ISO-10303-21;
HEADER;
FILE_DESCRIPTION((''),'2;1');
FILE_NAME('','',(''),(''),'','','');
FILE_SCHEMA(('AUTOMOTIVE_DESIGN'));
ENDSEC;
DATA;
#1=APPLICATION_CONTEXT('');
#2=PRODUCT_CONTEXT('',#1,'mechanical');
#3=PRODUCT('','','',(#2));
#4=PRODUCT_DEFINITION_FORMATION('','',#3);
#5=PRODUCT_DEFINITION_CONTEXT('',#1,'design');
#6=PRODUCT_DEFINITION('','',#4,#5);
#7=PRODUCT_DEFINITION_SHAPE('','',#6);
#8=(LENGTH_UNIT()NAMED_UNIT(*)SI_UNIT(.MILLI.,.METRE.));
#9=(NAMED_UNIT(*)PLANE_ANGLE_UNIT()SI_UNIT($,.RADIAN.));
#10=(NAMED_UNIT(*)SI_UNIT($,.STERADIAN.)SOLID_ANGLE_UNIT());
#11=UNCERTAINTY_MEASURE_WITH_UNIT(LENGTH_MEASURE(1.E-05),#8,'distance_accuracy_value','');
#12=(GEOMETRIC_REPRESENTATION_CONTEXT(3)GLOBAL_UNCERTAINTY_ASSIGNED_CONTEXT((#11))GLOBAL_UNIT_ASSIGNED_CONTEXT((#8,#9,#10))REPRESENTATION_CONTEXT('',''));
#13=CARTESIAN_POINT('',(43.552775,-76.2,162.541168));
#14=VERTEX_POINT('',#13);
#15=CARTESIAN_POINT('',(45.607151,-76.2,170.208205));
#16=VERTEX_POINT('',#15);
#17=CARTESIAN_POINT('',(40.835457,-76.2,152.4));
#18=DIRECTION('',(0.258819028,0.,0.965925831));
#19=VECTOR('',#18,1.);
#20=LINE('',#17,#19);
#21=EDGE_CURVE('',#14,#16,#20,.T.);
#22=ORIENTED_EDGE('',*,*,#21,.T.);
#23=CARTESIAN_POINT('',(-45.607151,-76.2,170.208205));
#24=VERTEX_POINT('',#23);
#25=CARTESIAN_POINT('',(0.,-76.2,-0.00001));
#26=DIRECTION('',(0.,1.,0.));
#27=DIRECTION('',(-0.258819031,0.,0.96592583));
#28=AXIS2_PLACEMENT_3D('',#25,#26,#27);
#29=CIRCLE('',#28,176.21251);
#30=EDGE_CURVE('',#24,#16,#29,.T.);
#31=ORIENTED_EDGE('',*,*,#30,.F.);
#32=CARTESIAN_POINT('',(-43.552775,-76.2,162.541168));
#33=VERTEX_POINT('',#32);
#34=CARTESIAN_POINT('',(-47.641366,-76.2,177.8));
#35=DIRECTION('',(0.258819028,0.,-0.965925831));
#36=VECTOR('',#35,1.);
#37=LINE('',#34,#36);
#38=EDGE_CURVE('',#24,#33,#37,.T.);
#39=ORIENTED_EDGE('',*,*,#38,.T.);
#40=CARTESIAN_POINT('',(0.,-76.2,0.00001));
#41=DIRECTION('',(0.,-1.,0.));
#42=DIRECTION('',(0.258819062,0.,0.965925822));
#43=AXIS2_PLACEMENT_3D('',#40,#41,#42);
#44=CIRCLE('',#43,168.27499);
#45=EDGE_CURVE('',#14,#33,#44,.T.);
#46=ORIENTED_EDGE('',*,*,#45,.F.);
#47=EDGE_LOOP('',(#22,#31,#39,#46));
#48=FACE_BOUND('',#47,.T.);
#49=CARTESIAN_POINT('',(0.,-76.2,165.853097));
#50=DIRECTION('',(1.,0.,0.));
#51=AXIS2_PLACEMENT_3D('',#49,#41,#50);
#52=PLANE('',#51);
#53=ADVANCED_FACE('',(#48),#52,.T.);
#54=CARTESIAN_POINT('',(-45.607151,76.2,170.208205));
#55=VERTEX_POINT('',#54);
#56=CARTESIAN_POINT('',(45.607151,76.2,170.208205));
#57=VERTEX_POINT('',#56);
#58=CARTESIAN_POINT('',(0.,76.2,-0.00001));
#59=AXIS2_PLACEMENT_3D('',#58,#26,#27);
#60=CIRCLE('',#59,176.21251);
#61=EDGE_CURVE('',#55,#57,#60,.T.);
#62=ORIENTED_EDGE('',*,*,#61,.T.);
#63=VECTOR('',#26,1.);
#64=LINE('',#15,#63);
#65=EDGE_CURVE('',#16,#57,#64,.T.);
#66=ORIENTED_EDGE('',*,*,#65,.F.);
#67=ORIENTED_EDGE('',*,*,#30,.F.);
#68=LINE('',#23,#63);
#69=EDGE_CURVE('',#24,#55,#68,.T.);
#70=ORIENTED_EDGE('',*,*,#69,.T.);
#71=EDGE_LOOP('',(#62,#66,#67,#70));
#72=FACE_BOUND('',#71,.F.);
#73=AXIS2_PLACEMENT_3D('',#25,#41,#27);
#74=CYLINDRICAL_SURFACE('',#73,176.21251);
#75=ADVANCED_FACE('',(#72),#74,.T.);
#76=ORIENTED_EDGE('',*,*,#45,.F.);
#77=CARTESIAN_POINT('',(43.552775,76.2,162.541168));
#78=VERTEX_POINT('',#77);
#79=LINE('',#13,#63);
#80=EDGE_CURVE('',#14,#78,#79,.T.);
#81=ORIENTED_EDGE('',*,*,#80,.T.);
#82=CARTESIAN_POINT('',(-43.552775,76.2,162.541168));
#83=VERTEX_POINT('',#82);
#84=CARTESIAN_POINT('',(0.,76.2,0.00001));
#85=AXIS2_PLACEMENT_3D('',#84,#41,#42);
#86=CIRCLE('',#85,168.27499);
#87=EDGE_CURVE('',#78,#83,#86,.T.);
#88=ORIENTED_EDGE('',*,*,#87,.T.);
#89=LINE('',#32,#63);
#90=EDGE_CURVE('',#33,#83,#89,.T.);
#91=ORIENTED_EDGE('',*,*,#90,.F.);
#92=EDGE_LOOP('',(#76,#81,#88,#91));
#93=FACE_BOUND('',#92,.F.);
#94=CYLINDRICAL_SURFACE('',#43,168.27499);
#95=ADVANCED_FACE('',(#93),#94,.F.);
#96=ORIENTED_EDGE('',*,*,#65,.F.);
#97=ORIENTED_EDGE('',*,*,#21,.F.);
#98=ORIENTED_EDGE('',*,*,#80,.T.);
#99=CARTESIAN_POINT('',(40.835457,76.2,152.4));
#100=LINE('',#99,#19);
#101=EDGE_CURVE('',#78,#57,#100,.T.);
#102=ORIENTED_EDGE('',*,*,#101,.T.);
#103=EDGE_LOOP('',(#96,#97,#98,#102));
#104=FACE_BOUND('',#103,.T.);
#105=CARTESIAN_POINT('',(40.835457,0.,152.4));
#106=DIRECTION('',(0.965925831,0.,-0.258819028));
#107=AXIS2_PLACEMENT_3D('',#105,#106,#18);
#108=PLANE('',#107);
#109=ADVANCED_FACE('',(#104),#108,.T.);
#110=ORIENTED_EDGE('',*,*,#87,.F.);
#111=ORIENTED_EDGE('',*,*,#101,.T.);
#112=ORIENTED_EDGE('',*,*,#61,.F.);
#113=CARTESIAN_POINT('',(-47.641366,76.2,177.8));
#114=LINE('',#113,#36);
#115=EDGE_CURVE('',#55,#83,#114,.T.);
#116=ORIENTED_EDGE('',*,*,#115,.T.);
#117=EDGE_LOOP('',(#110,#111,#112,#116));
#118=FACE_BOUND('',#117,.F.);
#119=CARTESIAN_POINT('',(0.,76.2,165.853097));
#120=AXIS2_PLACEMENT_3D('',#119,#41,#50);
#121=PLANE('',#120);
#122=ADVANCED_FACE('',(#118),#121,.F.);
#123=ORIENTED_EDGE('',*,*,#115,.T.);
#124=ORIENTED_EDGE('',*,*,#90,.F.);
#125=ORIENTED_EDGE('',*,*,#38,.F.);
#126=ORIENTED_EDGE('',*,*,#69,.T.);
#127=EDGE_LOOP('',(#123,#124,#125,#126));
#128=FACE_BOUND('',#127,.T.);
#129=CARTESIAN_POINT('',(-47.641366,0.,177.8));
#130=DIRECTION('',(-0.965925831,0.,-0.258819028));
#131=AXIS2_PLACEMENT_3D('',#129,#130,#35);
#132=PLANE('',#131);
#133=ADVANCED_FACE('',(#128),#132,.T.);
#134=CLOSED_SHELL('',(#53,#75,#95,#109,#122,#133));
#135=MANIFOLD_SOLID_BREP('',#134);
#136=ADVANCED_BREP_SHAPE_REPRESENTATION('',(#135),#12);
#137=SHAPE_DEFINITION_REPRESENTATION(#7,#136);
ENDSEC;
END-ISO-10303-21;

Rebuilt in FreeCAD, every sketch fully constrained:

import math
import FreeCAD as App
import Part
import Sketcher

V = App.Vector
Q = App.Units.Quantity

doc = App.newDocument("Part")
params = doc.addObject("Spreadsheet::Sheet", "Params")
for row, (alias, value) in enumerate([
    ("pad1_length", "6 in"),
], start=1):
    params.set(f"A{row}", alias)
    params.set(f"B{row}", "=" + value)
    params.setAlias(f"B{row}", alias)

body = doc.addObject("PartDesign::Body", "Body")

# Sketch on XZ plane
sketch1 = body.newObject("Sketcher::SketchObject", "Sketch")
sketch1.AttachmentSupport = (doc.getObject("XZ_Plane"), [""])
sketch1.MapMode = "FlatFace"
sketch1.addGeometry(Part.LineSegment(V(48, 178, 0), V(-48, 178, 0)), False)
sketch1.addGeometry(Part.LineSegment(V(-48, 178, 0), V(-41, 152, 0)), False)
sketch1.addGeometry(Part.LineSegment(V(-41, 152, 0), V(41, 152, 0)), False)
sketch1.addGeometry(Part.LineSegment(V(41, 152, 0), V(48, 178, 0)), False)
sketch1.addConstraint(Sketcher.Constraint("Coincident", 0, 2, 1, 1))
sketch1.addConstraint(Sketcher.Constraint("Coincident", 1, 2, 2, 1))
sketch1.addConstraint(Sketcher.Constraint("Coincident", 2, 2, 3, 1))
sketch1.addConstraint(Sketcher.Constraint("Coincident", 3, 2, 0, 1))
sketch1.addConstraint(Sketcher.Constraint("Horizontal", 0))
sketch1.addConstraint(Sketcher.Constraint("Horizontal", 2))
sketch1.addConstraint(Sketcher.Constraint("Equal", 1, 3))
sketch1.addConstraint(Sketcher.Constraint("DistanceY", -1, 1, 0, 2, Q("7 in")))
sketch1.addConstraint(Sketcher.Constraint("DistanceY", -1, 1, 1, 2, Q("6 in")))
sketch1.addConstraint(Sketcher.Constraint("Angle", 1, Q("-75.000001 deg")))
sketch1.addConstraint(Sketcher.Constraint("DistanceX", 0, 2, 0, 1, 95.282732))
sketch1.addConstraint(Sketcher.Constraint("DistanceX", 0, 2, -1, 1, 47.641366))
pad1 = body.newObject("PartDesign::Pad", "Pad")
pad1.Profile = sketch1
pad1.setExpression("Length", "Params.pad1_length")
pad1.Midplane = True

# Sketch on XZ plane
sketch2 = body.newObject("Sketcher::SketchObject", "Sketch001")
sketch2.AttachmentSupport = (doc.getObject("XZ_Plane"), [""])
sketch2.MapMode = "FlatFace"
sketch2.AttachmentOffset = App.Placement(V(0, 0, 3 * 25.4), App.Rotation())
sketch2.addGeometry(Part.ArcOfCircle(Part.Circle(V(0, -0.00001, 0), V(0, 0, 1), 176.21251), math.radians(75.000001), math.radians(104.999999)), False)
sketch2.addGeometry(Part.LineSegment(V(45.607151, 170.208205, 0), V(47.641366, 177.8, 0)), False)
sketch2.addGeometry(Part.LineSegment(V(47.641366, 177.8, 0), V(-47.641366, 177.8, 0)), False)
sketch2.addGeometry(Part.LineSegment(V(-47.641366, 177.8, 0), V(-45.607151, 170.208205, 0)), False)
sketch2.addGeometry(Part.LineSegment(V(40.835457, 152.4, 0), V(43.552775, 162.541168, 0)), False)
sketch2.addGeometry(Part.ArcOfCircle(Part.Circle(V(0, 0.00001, 0), V(0, 0, 1), 168.27499), math.radians(74.999999), math.radians(105.000001)), False)
sketch2.addGeometry(Part.LineSegment(V(-43.552775, 162.541168, 0), V(-40.835457, 152.4, 0)), False)
sketch2.addGeometry(Part.LineSegment(V(-40.835457, 152.4, 0), V(40.835457, 152.4, 0)), False)
sketch2.addConstraint(Sketcher.Constraint("Coincident", 0, 1, 1, 1))
sketch2.addConstraint(Sketcher.Constraint("Coincident", 1, 2, 2, 1))
sketch2.addConstraint(Sketcher.Constraint("Coincident", 2, 2, 3, 1))
sketch2.addConstraint(Sketcher.Constraint("Coincident", 3, 2, 0, 2))
sketch2.addConstraint(Sketcher.Constraint("Coincident", 4, 2, 5, 1))
sketch2.addConstraint(Sketcher.Constraint("Coincident", 5, 2, 6, 1))
sketch2.addConstraint(Sketcher.Constraint("Coincident", 6, 2, 7, 1))
sketch2.addConstraint(Sketcher.Constraint("Coincident", 7, 2, 4, 1))
sketch2.addConstraint(Sketcher.Constraint("Horizontal", 2))
sketch2.addConstraint(Sketcher.Constraint("Horizontal", 7))
sketch2.addConstraint(Sketcher.Constraint("Coincident", 0, 3, -1, 1))
sketch2.addConstraint(Sketcher.Constraint("PointOnObject", 5, 3, -2))
sketch2.addConstraint(Sketcher.Constraint("DistanceY", -1, 1, 1, 2, Q("7 in")))
sketch2.addConstraint(Sketcher.Constraint("DistanceY", -1, 1, 6, 2, Q("6 in")))
sketch2.addConstraint(Sketcher.Constraint("Radius", 0, 176.21251))
sketch2.addConstraint(Sketcher.Constraint("Radius", 5, 168.27499))
sketch2.addConstraint(Sketcher.Constraint("DistanceX", 2, 2, 2, 1, 95.282732))
sketch2.addConstraint(Sketcher.Constraint("Distance", 4, 10.49891))
sketch2.addConstraint(Sketcher.Constraint("Distance", 6, 10.49891))
sketch2.addConstraint(Sketcher.Constraint("DistanceX", 7, 1, 7, 2, 81.670914))
sketch2.addConstraint(Sketcher.Constraint("DistanceX", -1, 1, 0, 1, 45.607151))
sketch2.addConstraint(Sketcher.Constraint("DistanceX", 3, 2, -1, 1, 45.607151))
sketch2.addConstraint(Sketcher.Constraint("DistanceY", -1, 1, 4, 2, 162.541168))
sketch2.addConstraint(Sketcher.Constraint("DistanceX", 4, 2, 1, 2, 4.088591))
sketch2.addConstraint(Sketcher.Constraint("DistanceX", 2, 2, 5, 2, 4.088591))
pocket1 = body.newObject("PartDesign::Pocket", "Pocket")
pocket1.Profile = sketch2
pocket1.Type = "ThroughAll"

doc.recompute()
